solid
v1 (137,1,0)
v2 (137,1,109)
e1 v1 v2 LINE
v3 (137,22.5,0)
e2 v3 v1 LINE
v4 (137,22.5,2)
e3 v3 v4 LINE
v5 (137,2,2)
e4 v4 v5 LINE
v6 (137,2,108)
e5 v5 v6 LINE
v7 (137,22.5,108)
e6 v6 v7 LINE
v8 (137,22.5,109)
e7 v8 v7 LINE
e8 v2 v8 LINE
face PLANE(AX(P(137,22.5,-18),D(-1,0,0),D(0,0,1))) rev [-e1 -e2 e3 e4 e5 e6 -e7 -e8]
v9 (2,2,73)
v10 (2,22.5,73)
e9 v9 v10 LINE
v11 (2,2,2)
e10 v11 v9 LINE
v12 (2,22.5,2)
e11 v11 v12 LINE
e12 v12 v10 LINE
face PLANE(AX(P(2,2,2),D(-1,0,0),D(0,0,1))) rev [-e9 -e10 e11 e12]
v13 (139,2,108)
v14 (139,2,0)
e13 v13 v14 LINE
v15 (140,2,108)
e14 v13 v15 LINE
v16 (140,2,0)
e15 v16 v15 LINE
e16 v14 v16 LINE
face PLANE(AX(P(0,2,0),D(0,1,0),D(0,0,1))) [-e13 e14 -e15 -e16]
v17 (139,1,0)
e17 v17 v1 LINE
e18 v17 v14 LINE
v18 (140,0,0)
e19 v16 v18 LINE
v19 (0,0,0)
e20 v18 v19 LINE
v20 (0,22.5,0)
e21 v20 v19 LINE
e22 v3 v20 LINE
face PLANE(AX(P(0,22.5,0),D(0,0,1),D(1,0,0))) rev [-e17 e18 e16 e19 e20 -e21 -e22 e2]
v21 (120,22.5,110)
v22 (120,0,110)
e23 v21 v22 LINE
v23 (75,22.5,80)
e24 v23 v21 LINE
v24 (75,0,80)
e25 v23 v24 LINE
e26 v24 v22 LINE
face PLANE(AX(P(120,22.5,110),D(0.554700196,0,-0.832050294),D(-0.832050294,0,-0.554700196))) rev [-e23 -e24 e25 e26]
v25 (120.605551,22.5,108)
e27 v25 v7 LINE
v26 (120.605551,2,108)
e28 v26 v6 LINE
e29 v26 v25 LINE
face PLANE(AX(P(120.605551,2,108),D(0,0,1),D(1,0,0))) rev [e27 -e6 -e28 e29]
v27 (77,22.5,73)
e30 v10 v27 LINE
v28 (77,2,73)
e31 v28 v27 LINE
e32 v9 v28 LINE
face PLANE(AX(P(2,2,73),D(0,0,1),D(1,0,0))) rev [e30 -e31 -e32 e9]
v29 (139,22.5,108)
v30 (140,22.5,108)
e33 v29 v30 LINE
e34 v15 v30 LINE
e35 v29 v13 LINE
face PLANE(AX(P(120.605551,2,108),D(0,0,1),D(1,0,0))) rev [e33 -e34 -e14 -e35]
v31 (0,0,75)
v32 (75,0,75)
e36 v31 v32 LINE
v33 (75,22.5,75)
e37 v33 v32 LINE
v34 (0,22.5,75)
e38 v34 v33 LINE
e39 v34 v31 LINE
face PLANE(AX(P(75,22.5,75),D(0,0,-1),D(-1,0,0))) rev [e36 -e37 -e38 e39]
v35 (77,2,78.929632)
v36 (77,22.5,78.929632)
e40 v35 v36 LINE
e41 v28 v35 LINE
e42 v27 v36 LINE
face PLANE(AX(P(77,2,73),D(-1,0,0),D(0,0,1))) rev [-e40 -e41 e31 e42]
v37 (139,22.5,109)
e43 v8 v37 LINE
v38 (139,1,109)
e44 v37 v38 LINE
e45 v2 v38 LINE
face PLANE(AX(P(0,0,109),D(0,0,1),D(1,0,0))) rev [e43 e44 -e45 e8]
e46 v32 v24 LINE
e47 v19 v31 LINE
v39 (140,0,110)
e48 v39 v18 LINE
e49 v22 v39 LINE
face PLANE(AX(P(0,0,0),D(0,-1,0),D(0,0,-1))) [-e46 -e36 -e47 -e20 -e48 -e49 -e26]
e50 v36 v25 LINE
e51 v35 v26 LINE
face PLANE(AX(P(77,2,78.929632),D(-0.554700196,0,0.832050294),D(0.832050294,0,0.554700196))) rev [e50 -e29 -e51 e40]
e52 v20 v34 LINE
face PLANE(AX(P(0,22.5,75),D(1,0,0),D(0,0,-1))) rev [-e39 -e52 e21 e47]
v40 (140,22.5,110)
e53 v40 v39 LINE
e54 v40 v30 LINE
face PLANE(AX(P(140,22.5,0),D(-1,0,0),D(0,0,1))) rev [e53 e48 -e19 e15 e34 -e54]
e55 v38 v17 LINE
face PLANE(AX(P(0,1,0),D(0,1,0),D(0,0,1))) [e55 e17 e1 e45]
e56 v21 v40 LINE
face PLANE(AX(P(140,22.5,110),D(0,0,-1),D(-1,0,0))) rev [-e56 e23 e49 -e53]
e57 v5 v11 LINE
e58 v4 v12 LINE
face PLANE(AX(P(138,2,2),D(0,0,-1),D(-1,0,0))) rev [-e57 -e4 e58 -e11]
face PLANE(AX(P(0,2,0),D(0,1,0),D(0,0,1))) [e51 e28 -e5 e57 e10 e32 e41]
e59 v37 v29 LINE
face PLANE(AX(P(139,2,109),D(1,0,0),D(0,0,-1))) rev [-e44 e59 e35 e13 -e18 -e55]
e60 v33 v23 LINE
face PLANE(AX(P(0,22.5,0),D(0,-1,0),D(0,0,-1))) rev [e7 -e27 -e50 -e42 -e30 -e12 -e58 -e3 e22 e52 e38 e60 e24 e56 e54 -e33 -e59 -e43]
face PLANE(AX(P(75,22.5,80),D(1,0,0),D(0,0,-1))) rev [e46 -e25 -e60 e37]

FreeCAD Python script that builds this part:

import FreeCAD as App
import Part
import Sketcher
Q = App.Units.Quantity


def add_polygon(sketch, points):
    """Adds a closed chain of lines whose ends are joined by coincident constraints."""
    first, n = sketch.GeometryCount, len(points)
    for a, b in zip(points, points[1:] + points[:1]):
        sketch.addGeometry(Part.LineSegment(App.Vector(*a, 0), App.Vector(*b, 0)), False)
    for i in range(n):
        sketch.addConstraint(Sketcher.Constraint("Coincident", first + i, 2, first + (i + 1) % n, 1))

doc = App.newDocument("Part")
body = doc.addObject("PartDesign::Body", "Body")

# Sketch on XZ plane
sketch1 = doc.addObject("Sketcher::SketchObject", "Sketch")
body.addObject(sketch1)
sketch1.AttachmentSupport = (doc.XZ_Plane, [""])
sketch1.MapMode = "FlatFace"
add_polygon(sketch1, [(140, 0), (0, 0), (0, 75), (75, 75), (75, 80), (120, 110), (140, 110)])  # lines 0-6
sketch1.addConstraint(Sketcher.Constraint("Horizontal", 0))
sketch1.addConstraint(Sketcher.Constraint("Vertical", 1))
sketch1.addConstraint(Sketcher.Constraint("Horizontal", 2))
sketch1.addConstraint(Sketcher.Constraint("Vertical", 3))
sketch1.addConstraint(Sketcher.Constraint("Horizontal", 5))
sketch1.addConstraint(Sketcher.Constraint("Vertical", 6))
sketch1.addConstraint(Sketcher.Constraint("Coincident", 0, 2, -1, 1))
sketch1.addConstraint(Sketcher.Constraint("Equal", 2, 1))
sketch1.addConstraint(Sketcher.Constraint("DistanceX", 0, 2, 0, 1, Q("140 mm")))
sketch1.addConstraint(Sketcher.Constraint("DistanceX", 2, 1, 2, 2, Q("75 mm")))
sketch1.addConstraint(Sketcher.Constraint("DistanceX", 5, 1, 5, 2, Q("20 mm")))
sketch1.addConstraint(Sketcher.Constraint("DistanceY", 3, 1, 3, 2, Q("5 mm")))
sketch1.addConstraint(Sketcher.Constraint("DistanceY", 6, 2, 6, 1, Q("110 mm")))
pad1 = doc.addObject("PartDesign::Pad", "Pad")
body.addObject(pad1)
pad1.Profile = sketch1
pad1.Length = 22.5
pad1.Reversed = True

# Sketch on XZ plane
sketch2 = doc.addObject("Sketcher::SketchObject", "Sketch001")
body.addObject(sketch2)
sketch2.AttachmentSupport = (doc.XZ_Plane, [""])
sketch2.MapMode = "FlatFace"
sketch2.AttachmentOffset = App.Placement(App.Vector(0, 0, -22.5), App.Rotation())
add_polygon(sketch2, [(2, 2), (2, 73), (77, 73), (77, 79), (121, 108), (138, 108), (138, 2)])  # lines 0-6
sketch2.addConstraint(Sketcher.Constraint("Vertical", 0))
sketch2.addConstraint(Sketcher.Constraint("Horizontal", 1))
sketch2.addConstraint(Sketcher.Constraint("Vertical", 2))
sketch2.addConstraint(Sketcher.Constraint("Horizontal", 4))
sketch2.addConstraint(Sketcher.Constraint("Vertical", 5))
sketch2.addConstraint(Sketcher.Constraint("Horizontal", 6))
sketch2.addConstraint(Sketcher.Constraint("DistanceX", 1, 1, 1, 2, Q("75 mm")))
sketch2.addConstraint(Sketcher.Constraint("DistanceX", 6, 2, 6, 1, Q("136 mm")))
sketch2.addConstraint(Sketcher.Constraint("DistanceY", 0, 1, 0, 2, Q("71 mm")))
sketch2.addConstraint(Sketcher.Constraint("DistanceY", 5, 2, 5, 1, Q("106 mm")))
sketch2.addConstraint(Sketcher.Constraint("DistanceX", -1, 1, 0, 2, Q("2 mm")))
sketch2.addConstraint(Sketcher.Constraint("DistanceY", -1, 1, 0, 2, Q("73 mm")))
sketch2.addConstraint(Sketcher.Constraint("DistanceX", 4, 1, 4, 2, Q("17.394449 mm")))
sketch2.addConstraint(Sketcher.Constraint("Distance", 3, Q("52.40735 mm")))
pocket1 = doc.addObject("PartDesign::Pocket", "Pocket")
body.addObject(pocket1)
pocket1.Profile = sketch2
pocket1.Length = 20.5
pocket1.Reversed = True

# Sketch on YZ plane
sketch3 = doc.addObject("Sketcher::SketchObject", "Sketch002")
body.addObject(sketch3)
sketch3.AttachmentSupport = (doc.YZ_Plane, [""])
sketch3.MapMode = "FlatFace"
sketch3.AttachmentOffset = App.Placement(App.Vector(0, 0, 138), App.Rotation())
add_polygon(sketch3, [(22, 2), (2, 2), (2, 108), (22, 108)])  # lines 0-3
sketch3.addConstraint(Sketcher.Constraint("Horizontal", 0))
sketch3.addConstraint(Sketcher.Constraint("Vertical", 1))
sketch3.addConstraint(Sketcher.Constraint("Horizontal", 2))
sketch3.addConstraint(Sketcher.Constraint("Vertical", 3))
sketch3.addConstraint(Sketcher.Constraint("DistanceY", 1, 1, 1, 2, Q("106 mm")))
sketch3.addConstraint(Sketcher.Constraint("DistanceX", 0, 2, 0, 1, Q("20.5 mm")))
sketch3.addConstraint(Sketcher.Constraint("DistanceX", -1, 1, 0, 2, Q("2 mm")))
sketch3.addConstraint(Sketcher.Constraint("DistanceY", -1, 1, 0, 2, Q("2 mm")))
pocket2 = doc.addObject("PartDesign::Pocket", "Pocket001")
body.addObject(pocket2)
pocket2.Profile = sketch3
pocket2.Length = 20
pocket2.Reversed = True

# Sketch on XY plane
sketch4 = doc.addObject("Sketcher::SketchObject", "Sketch003")
body.addObject(sketch4)
sketch4.AttachmentSupport = (doc.XY_Plane, [""])
sketch4.MapMode = "FlatFace"
sketch4.AttachmentOffset = App.Placement(App.Vector(0, 0, 2), App.Rotation())
add_polygon(sketch4, [(137, 22.5), (137, 2), (140, 2), (140, 22.5)])  # lines 0-3
sketch4.addConstraint(Sketcher.Constraint("Vertical", 0))
sketch4.addConstraint(Sketcher.Constraint("Horizontal", 1))
sketch4.addConstraint(Sketcher.Constraint("Vertical", 2))
sketch4.addConstraint(Sketcher.Constraint("Horizontal", 3))
sketch4.addConstraint(Sketcher.Constraint("DistanceX", 1, 1, 1, 2, Q("3 mm")))
sketch4.addConstraint(Sketcher.Constraint("DistanceY", 0, 2, 0, 1, Q("20.5 mm")))
sketch4.addConstraint(Sketcher.Constraint("DistanceX", -1, 1, 0, 2, Q("137 mm")))
sketch4.addConstraint(Sketcher.Constraint("DistanceY", -1, 1, 0, 2, Q("2 mm")))
pocket3 = doc.addObject("PartDesign::Pocket", "Pocket002")
body.addObject(pocket3)
pocket3.Profile = sketch4
pocket3.Length = 20

# Sketch on XY plane
sketch5 = doc.addObject("Sketcher::SketchObject", "Sketch004")
body.addObject(sketch5)
sketch5.AttachmentSupport = (doc.XY_Plane, [""])
sketch5.MapMode = "FlatFace"
sketch5.AttachmentOffset = App.Placement(App.Vector(0, 0, 108), App.Rotation())
add_polygon(sketch5, [(139, 22.5), (139, 2), (137, 2), (137, 22.5)])  # lines 0-3
sketch5.addConstraint(Sketcher.Constraint("Vertical", 0))
sketch5.addConstraint(Sketcher.Constraint("Horizontal", 1))
sketch5.addConstraint(Sketcher.Constraint("Vertical", 2))
sketch5.addConstraint(Sketcher.Constraint("Horizontal", 3))
sketch5.addConstraint(Sketcher.Constraint("DistanceX", 1, 2, 1, 1, Q("2 mm")))
sketch5.addConstraint(Sketcher.Constraint("DistanceY", 0, 2, 0, 1, Q("20.5 mm")))
sketch5.addConstraint(Sketcher.Constraint("DistanceX", -1, 1, 0, 2, Q("139 mm")))
sketch5.addConstraint(Sketcher.Constraint("DistanceY", -1, 1, 0, 2, Q("2 mm")))
pocket4 = doc.addObject("PartDesign::Pocket", "Pocket003")
body.addObject(pocket4)
pocket4.Profile = sketch5
pocket4.Length = 1
pocket4.Reversed = True

# Sketch on XZ plane
sketch6 = doc.addObject("Sketcher::SketchObject", "Sketch005")
body.addObject(sketch6)
sketch6.AttachmentSupport = (doc.XZ_Plane, [""])
sketch6.MapMode = "FlatFace"
sketch6.AttachmentOffset = App.Placement(App.Vector(0, 0, -2), App.Rotation())
add_polygon(sketch6, [(137, 0), (137, 109), (139, 109), (139, 0)])  # lines 0-3
sketch6.addConstraint(Sketcher.Constraint("Vertical", 0))
sketch6.addConstraint(Sketcher.Constraint("Horizontal", 1))
sketch6.addConstraint(Sketcher.Constraint("Vertical", 2))
sketch6.addConstraint(Sketcher.Constraint("Horizontal", 3))
sketch6.addConstraint(Sketcher.Constraint("PointOnObject", 2, 2, -1))
sketch6.addConstraint(Sketcher.Constraint("DistanceX", 1, 1, 1, 2, Q("2 mm")))
sketch6.addConstraint(Sketcher.Constraint("DistanceY", 0, 1, 0, 2, Q("109 mm")))
sketch6.addConstraint(Sketcher.Constraint("DistanceX", -1, 1, 0, 2, Q("137 mm")))
pocket5 = doc.addObject("PartDesign::Pocket", "Pocket004")
body.addObject(pocket5)
pocket5.Profile = sketch6
pocket5.Length = 1
pocket5.Reversed = True

doc.recompute()
